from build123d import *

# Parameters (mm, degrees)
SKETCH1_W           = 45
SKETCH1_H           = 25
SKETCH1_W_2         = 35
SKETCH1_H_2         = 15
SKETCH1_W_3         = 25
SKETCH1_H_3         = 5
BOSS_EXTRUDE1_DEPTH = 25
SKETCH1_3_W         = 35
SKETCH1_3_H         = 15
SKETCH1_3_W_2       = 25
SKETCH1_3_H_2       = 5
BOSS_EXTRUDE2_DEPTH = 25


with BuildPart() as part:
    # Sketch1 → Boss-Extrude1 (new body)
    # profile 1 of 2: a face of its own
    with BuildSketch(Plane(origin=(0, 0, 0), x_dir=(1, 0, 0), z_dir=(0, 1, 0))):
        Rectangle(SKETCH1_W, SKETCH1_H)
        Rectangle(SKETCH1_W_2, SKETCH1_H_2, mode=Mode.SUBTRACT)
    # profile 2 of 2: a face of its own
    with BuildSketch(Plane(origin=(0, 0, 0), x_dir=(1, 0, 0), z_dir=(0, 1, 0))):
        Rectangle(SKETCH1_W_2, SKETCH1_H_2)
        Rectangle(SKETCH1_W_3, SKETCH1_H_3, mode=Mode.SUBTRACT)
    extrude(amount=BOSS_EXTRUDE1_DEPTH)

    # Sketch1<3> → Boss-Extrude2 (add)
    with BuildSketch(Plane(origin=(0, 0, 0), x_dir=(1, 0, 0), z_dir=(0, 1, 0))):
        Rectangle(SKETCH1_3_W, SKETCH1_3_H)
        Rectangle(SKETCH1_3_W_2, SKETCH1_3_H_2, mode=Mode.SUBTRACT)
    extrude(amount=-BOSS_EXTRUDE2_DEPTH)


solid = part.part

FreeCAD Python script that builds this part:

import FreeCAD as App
import Part
import Sketcher

doc = App.newDocument("Part")
body = doc.addObject("PartDesign::Body", "Body")

sketch1 = doc.addObject("Sketcher::SketchObject", "Sketch")
body.addObject(sketch1)
sketch1.AttachmentSupport = (doc.XZ_Plane, [""])
sketch1.MapMode = "FlatFace"
sketch1.addGeometry([
    Part.LineSegment(App.Vector(-22, -12, 0), App.Vector(-22, 12, 0)),
    Part.LineSegment(App.Vector(-22, 12, 0), App.Vector(22, 12, 0)),
    Part.LineSegment(App.Vector(22, 12, 0), App.Vector(22, -12, 0)),
    Part.LineSegment(App.Vector(22, -12, 0), App.Vector(-22, -12, 0)),
    Part.LineSegment(App.Vector(12, 2, 0), App.Vector(-12, 2, 0)),
    Part.LineSegment(App.Vector(-12, 2, 0), App.Vector(-12, -2, 0)),
    Part.LineSegment(App.Vector(-12, -2, 0), App.Vector(12, -2, 0)),
    Part.LineSegment(App.Vector(12, -2, 0), App.Vector(12, 2, 0)),
], False)
sketch1.addConstraint([
    Sketcher.Constraint("Coincident", 0, 2, 1, 1),
    Sketcher.Constraint("Coincident", 1, 2, 2, 1),
    Sketcher.Constraint("Coincident", 2, 2, 3, 1),
    Sketcher.Constraint("Coincident", 3, 2, 0, 1),
    Sketcher.Constraint("Coincident", 4, 2, 5, 1),
    Sketcher.Constraint("Coincident", 5, 2, 6, 1),
    Sketcher.Constraint("Coincident", 6, 2, 7, 1),
    Sketcher.Constraint("Coincident", 7, 2, 4, 1),
    Sketcher.Constraint("Vertical", 0),
    Sketcher.Constraint("Horizontal", 1),
    Sketcher.Constraint("Vertical", 2),
    Sketcher.Constraint("Horizontal", 3),
    Sketcher.Constraint("Horizontal", 4),
    Sketcher.Constraint("Vertical", 5),
    Sketcher.Constraint("Horizontal", 6),
    Sketcher.Constraint("Vertical", 7),
    Sketcher.Constraint("Symmetric", 0, 2, 2, 2, -1, 1),
    Sketcher.Constraint("Symmetric", 4, 2, 6, 2, -1, 1),
    Sketcher.Constraint("Equal", 6, 0),
    Sketcher.Constraint("DistanceX", 1, 1, 1, 2, 45.0),
    Sketcher.Constraint("DistanceX", 4, 2, 4, 1, 25.0),
    Sketcher.Constraint("DistanceY", 5, 2, 5, 1, 5.0),
])
pad1 = doc.addObject("PartDesign::Pad", "Pad")
body.addObject(pad1)
pad1.Profile = sketch1
pad1.Length = 25
pad1.Reversed = True

sketch2 = doc.addObject("Sketcher::SketchObject", "Sketch001")
body.addObject(sketch2)
sketch2.AttachmentSupport = (doc.XZ_Plane, [""])
sketch2.MapMode = "FlatFace"
sketch2.addGeometry([
    Part.LineSegment(App.Vector(-18, -8, 0), App.Vector(-18, 8, 0)),
    Part.LineSegment(App.Vector(-18, 8, 0), App.Vector(18, 8, 0)),
    Part.LineSegment(App.Vector(18, 8, 0), App.Vector(18, -8, 0)),
    Part.LineSegment(App.Vector(18, -8, 0), App.Vector(-18, -8, 0)),
    Part.LineSegment(App.Vector(12, 2, 0), App.Vector(-12, 2, 0)),
    Part.LineSegment(App.Vector(-12, 2, 0), App.Vector(-12, -2, 0)),
    Part.LineSegment(App.Vector(-12, -2, 0), App.Vector(12, -2, 0)),
    Part.LineSegment(App.Vector(12, -2, 0), App.Vector(12, 2, 0)),
], False)
sketch2.addConstraint([
    Sketcher.Constraint("Coincident", 0, 2, 1, 1),
    Sketcher.Constraint("Coincident", 1, 2, 2, 1),
    Sketcher.Constraint("Coincident", 2, 2, 3, 1),
    Sketcher.Constraint("Coincident", 3, 2, 0, 1),
    Sketcher.Constraint("Coincident", 4, 2, 5, 1),
    Sketcher.Constraint("Coincident", 5, 2, 6, 1),
    Sketcher.Constraint("Coincident", 6, 2, 7, 1),
    Sketcher.Constraint("Coincident", 7, 2, 4, 1),
    Sketcher.Constraint("Vertical", 0),
    Sketcher.Constraint("Horizontal", 1),
    Sketcher.Constraint("Vertical", 2),
    Sketcher.Constraint("Horizontal", 3),
    Sketcher.Constraint("Horizontal", 4),
    Sketcher.Constraint("Vertical", 5),
    Sketcher.Constraint("Horizontal", 6),
    Sketcher.Constraint("Vertical", 7),
    Sketcher.Constraint("Symmetric", 0, 2, 2, 2, -1, 1),
    Sketcher.Constraint("Symmetric", 4, 2, 6, 2, -1, 1),
    Sketcher.Constraint("DistanceX", 1, 1, 1, 2, 35.0),
    Sketcher.Constraint("DistanceX", 4, 2, 4, 1, 25.0),
    Sketcher.Constraint("DistanceY", 0, 1, 0, 2, 15.0),
    Sketcher.Constraint("DistanceY", 5, 2, 5, 1, 5.0),
])
pad2 = doc.addObject("PartDesign::Pad", "Pad001")
body.addObject(pad2)
pad2.Profile = sketch2
pad2.Length = 25

doc.recompute()
